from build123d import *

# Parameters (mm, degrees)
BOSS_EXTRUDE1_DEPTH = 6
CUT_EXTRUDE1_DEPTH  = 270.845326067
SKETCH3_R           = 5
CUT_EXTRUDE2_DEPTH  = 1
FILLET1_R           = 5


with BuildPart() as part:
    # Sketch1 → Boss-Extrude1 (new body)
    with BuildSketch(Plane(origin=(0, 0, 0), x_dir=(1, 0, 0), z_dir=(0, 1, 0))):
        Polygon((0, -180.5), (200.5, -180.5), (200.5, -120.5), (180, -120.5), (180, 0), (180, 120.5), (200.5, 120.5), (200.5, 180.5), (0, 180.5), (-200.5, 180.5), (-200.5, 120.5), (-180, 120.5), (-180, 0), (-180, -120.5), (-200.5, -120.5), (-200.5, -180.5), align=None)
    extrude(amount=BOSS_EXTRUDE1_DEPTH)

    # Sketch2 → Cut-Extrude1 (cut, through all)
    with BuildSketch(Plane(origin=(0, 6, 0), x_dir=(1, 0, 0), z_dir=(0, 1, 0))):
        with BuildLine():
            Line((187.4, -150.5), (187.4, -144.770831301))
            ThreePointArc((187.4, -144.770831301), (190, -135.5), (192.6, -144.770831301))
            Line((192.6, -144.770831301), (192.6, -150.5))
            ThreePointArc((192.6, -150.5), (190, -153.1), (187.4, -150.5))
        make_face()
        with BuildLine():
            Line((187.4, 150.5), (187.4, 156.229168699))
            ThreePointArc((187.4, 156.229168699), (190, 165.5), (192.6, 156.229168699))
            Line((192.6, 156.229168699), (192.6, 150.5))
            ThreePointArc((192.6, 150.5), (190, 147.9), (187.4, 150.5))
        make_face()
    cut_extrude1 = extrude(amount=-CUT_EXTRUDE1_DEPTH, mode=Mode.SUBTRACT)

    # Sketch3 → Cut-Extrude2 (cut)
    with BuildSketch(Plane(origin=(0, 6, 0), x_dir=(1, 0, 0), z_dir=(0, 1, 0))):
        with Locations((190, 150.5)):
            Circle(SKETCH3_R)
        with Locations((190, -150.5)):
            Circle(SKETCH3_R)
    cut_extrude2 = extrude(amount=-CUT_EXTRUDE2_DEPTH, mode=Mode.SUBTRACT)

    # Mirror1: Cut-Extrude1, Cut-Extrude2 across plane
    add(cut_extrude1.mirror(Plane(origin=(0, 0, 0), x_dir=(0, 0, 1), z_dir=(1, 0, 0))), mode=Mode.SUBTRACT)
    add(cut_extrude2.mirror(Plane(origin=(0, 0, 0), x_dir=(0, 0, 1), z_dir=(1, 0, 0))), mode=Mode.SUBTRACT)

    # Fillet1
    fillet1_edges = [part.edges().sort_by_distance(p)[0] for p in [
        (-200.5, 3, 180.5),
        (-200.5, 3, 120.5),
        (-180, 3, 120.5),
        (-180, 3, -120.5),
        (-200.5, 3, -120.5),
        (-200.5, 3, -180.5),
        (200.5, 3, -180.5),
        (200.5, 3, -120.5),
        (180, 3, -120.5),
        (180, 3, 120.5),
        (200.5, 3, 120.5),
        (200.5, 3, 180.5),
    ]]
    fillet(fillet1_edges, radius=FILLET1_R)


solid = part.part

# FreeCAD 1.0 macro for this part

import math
import FreeCAD as App
import Part
import Sketcher


def edges_at(feature, points):
    """Names of the edges that pass closest to the given points."""
    edges = feature.Shape.Edges
    near = lambda p: min(range(len(edges)), key=lambda i: edges[i].distToShape(Part.Vertex(*p))[0])
    return sorted({f"Edge{near(p) + 1}" for p in points})


def add_polygon(sketch, points):
    """Adds a closed chain of lines whose ends are joined by coincident constraints."""
    first, n = sketch.GeometryCount, len(points)
    for a, b in zip(points, points[1:] + points[:1]):
        sketch.addGeometry(Part.LineSegment(App.Vector(*a, 0), App.Vector(*b, 0)), False)
    for i in range(n):
        sketch.addConstraint(Sketcher.Constraint("Coincident", first + i, 2, first + (i + 1) % n, 1))

doc = App.newDocument("Part")
body = doc.addObject("PartDesign::Body", "Body")

sketch1 = body.newObject("Sketcher::SketchObject", "Sketch")
sketch1.AttachmentSupport = (doc.getObject("XZ_Plane"), [""])
sketch1.MapMode = "FlatFace"
add_polygon(sketch1, [(200.5, 180.5), (200.5, 120.5), (180, 120.5), (180, -120.5), (200.5, -120.5), (200.5, -180.5), (-200.5, -180.5), (-200.5, -120.5), (-180, -120.5), (-180, 120.5), (-200.5, 120.5), (-200.5, 180.5)])
sketch1.addConstraint(Sketcher.Constraint("Vertical", 0))
sketch1.addConstraint(Sketcher.Constraint("Horizontal", 1))
sketch1.addConstraint(Sketcher.Constraint("Vertical", 2))
sketch1.addConstraint(Sketcher.Constraint("Horizontal", 3))
sketch1.addConstraint(Sketcher.Constraint("Vertical", 4))
sketch1.addConstraint(Sketcher.Constraint("Horizontal", 5))
sketch1.addConstraint(Sketcher.Constraint("Vertical", 6))
sketch1.addConstraint(Sketcher.Constraint("Horizontal", 7))
sketch1.addConstraint(Sketcher.Constraint("Vertical", 8))
sketch1.addConstraint(Sketcher.Constraint("Horizontal", 9))
sketch1.addConstraint(Sketcher.Constraint("Vertical", 10))
sketch1.addConstraint(Sketcher.Constraint("Horizontal", 11))
sketch1.addConstraint(Sketcher.Constraint("Symmetric", 0, 2, 6, 2, -1, 1))
sketch1.addConstraint(Sketcher.Constraint("Symmetric", 2, 2, 8, 2, -1, 1))
sketch1.addConstraint(Sketcher.Constraint("Symmetric", 4, 2, 10, 2, -1, 1))
sketch1.addConstraint(Sketcher.Constraint("Symmetric", 3, 2, 6, 2, -2))
sketch1.addConstraint(Sketcher.Constraint("DistanceX", 5, 2, 5, 1, 401.0))
sketch1.addConstraint(Sketcher.Constraint("DistanceY", 0, 2, 0, 1, 60.0))
sketch1.addConstraint(Sketcher.Constraint("DistanceY", 2, 2, 2, 1, 241.0))
sketch1.addConstraint(Sketcher.Constraint("DistanceX", 1, 2, 1, 1, 20.5))
pad1 = body.newObject("PartDesign::Pad", "Pad")
pad1.Profile = sketch1
pad1.Length = 6
pad1.Reversed = True

sketch2 = body.newObject("Sketcher::SketchObject", "Sketch001")
sketch2.AttachmentSupport = (doc.getObject("XZ_Plane"), [""])
sketch2.MapMode = "FlatFace"
sketch2.AttachmentOffset = App.Placement(App.Vector(0, 0, -6), App.Rotation())
sketch2.addGeometry(Part.LineSegment(App.Vector(187.4, 144.770831, 0), App.Vector(187.4, 150.5, 0)), False)
sketch2.addGeometry(Part.ArcOfCircle(Part.Circle(App.Vector(190, 150.5, 0), App.Vector(0, 0, 1), 2.6), math.radians(0), math.radians(180)), False)
sketch2.addGeometry(Part.LineSegment(App.Vector(192.6, 150.5, 0), App.Vector(192.6, 144.770831, 0)), False)
sketch2.addGeometry(Part.ArcOfCircle(Part.Circle(App.Vector(190, 140.5, 0), App.Vector(0, 0, 1), 5), math.radians(121.332251), math.radians(418.667749)), False)
sketch2.addGeometry(Part.LineSegment(App.Vector(187.4, -156.229169, 0), App.Vector(187.4, -150.5, 0)), False)
sketch2.addGeometry(Part.ArcOfCircle(Part.Circle(App.Vector(190, -150.5, 0), App.Vector(0, 0, 1), 2.6), math.radians(0), math.radians(180)), False)
sketch2.addGeometry(Part.LineSegment(App.Vector(192.6, -150.5, 0), App.Vector(192.6, -156.229169, 0)), False)
sketch2.addGeometry(Part.ArcOfCircle(Part.Circle(App.Vector(190, -160.5, 0), App.Vector(0, 0, 1), 5), math.radians(121.332251), math.radians(418.667749)), False)
sketch2.addConstraint(Sketcher.Constraint("Tangent", 0, 2, 1, 2))
sketch2.addConstraint(Sketcher.Constraint("Tangent", 1, 1, 2, 1))
sketch2.addConstraint(Sketcher.Constraint("Coincident", 2, 2, 3, 2))
sketch2.addConstraint(Sketcher.Constraint("Coincident", 3, 1, 0, 1))
sketch2.addConstraint(Sketcher.Constraint("Tangent", 4, 2, 5, 2))
sketch2.addConstraint(Sketcher.Constraint("Tangent", 5, 1, 6, 1))
sketch2.addConstraint(Sketcher.Constraint("Coincident", 6, 2, 7, 2))
sketch2.addConstraint(Sketcher.Constraint("Coincident", 7, 1, 4, 1))
sketch2.addConstraint(Sketcher.Constraint("Vertical", 0))
sketch2.addConstraint(Sketcher.Constraint("Vertical", 2))
sketch2.addConstraint(Sketcher.Constraint("Vertical", 4))
sketch2.addConstraint(Sketcher.Constraint("Vertical", 6))
sketch2.addConstraint(Sketcher.Constraint("Equal", 1, 5))
sketch2.addConstraint(Sketcher.Constraint("Equal", 3, 7))
sketch2.addConstraint(Sketcher.Constraint("Symmetric", 1, 3, 5, 3, -1))
sketch2.addConstraint(Sketcher.Constraint("Horizontal", 2, 2, 3, 1))
sketch2.addConstraint(Sketcher.Constraint("Horizontal", 6, 2, 7, 1))
sketch2.addConstraint(Sketcher.Constraint("Equal", 2, 4))
sketch2.addConstraint(Sketcher.Constraint("Radius", 3, 5.0))
sketch2.addConstraint(Sketcher.Constraint("Radius", 1, 2.6))
sketch2.addConstraint(Sketcher.Constraint("DistanceX", -1, 1, 1, 3, 190.0))
sketch2.addConstraint(Sketcher.Constraint("DistanceY", 3, 3, 1, 3, 10.0))
sketch2.addConstraint(Sketcher.Constraint("DistanceY", 5, 3, 3, 3, 291.0))
pocket1 = body.newObject("PartDesign::Pocket", "Pocket")
pocket1.Profile = sketch2
pocket1.Type = "ThroughAll"
pocket1.Reversed = True

sketch3 = body.newObject("Sketcher::SketchObject", "Sketch002")
sketch3.AttachmentSupport = (doc.getObject("XZ_Plane"), [""])
sketch3.MapMode = "FlatFace"
sketch3.AttachmentOffset = App.Placement(App.Vector(0, 0, -6), App.Rotation())
sketch3.addGeometry(Part.Circle(App.Vector(190, -150.5, 0), App.Vector(0, 0, 1), 5), False)
sketch3.addGeometry(Part.Circle(App.Vector(190, 150.5, 0), App.Vector(0, 0, 1), 5), False)
sketch3.addConstraint(Sketcher.Constraint("Equal", 0, 1))
sketch3.addConstraint(Sketcher.Constraint("Symmetric", 0, 3, 1, 3, -1))
sketch3.addConstraint(Sketcher.Constraint("Diameter", 0, 10.0))
sketch3.addConstraint(Sketcher.Constraint("DistanceX", -1, 1, 0, 3, 190.0))
sketch3.addConstraint(Sketcher.Constraint("DistanceY", 0, 3, 1, 3, 301.0))
pocket2 = body.newObject("PartDesign::Pocket", "Pocket001")
pocket2.Profile = sketch3
pocket2.Length = 1
pocket2.Reversed = True
doc.recompute()

mirrored = body.newObject("PartDesign::Mirrored", "Mirrored")
mirrored.Originals = [pocket1, pocket2]
mirrored.MirrorPlane = (doc.getObject("YZ_Plane"), [""])
body.Tip = mirrored
doc.recompute()

fillet = body.newObject("PartDesign::Fillet", "Fillet")
fillet.Base = (mirrored, edges_at(mirrored, [
    (-200.5, 3, 180.5),
    (-200.5, 3, 120.5),
    (-180, 3, 120.5),
    (-180, 3, -120.5),
    (-200.5, 3, -120.5),
    (-200.5, 3, -180.5),
    (200.5, 3, -180.5),
    (200.5, 3, -120.5),
    (180, 3, -120.5),
    (180, 3, 120.5),
    (200.5, 3, 120.5),
    (200.5, 3, 180.5),
]))
fillet.Radius = 5

doc.recompute()
